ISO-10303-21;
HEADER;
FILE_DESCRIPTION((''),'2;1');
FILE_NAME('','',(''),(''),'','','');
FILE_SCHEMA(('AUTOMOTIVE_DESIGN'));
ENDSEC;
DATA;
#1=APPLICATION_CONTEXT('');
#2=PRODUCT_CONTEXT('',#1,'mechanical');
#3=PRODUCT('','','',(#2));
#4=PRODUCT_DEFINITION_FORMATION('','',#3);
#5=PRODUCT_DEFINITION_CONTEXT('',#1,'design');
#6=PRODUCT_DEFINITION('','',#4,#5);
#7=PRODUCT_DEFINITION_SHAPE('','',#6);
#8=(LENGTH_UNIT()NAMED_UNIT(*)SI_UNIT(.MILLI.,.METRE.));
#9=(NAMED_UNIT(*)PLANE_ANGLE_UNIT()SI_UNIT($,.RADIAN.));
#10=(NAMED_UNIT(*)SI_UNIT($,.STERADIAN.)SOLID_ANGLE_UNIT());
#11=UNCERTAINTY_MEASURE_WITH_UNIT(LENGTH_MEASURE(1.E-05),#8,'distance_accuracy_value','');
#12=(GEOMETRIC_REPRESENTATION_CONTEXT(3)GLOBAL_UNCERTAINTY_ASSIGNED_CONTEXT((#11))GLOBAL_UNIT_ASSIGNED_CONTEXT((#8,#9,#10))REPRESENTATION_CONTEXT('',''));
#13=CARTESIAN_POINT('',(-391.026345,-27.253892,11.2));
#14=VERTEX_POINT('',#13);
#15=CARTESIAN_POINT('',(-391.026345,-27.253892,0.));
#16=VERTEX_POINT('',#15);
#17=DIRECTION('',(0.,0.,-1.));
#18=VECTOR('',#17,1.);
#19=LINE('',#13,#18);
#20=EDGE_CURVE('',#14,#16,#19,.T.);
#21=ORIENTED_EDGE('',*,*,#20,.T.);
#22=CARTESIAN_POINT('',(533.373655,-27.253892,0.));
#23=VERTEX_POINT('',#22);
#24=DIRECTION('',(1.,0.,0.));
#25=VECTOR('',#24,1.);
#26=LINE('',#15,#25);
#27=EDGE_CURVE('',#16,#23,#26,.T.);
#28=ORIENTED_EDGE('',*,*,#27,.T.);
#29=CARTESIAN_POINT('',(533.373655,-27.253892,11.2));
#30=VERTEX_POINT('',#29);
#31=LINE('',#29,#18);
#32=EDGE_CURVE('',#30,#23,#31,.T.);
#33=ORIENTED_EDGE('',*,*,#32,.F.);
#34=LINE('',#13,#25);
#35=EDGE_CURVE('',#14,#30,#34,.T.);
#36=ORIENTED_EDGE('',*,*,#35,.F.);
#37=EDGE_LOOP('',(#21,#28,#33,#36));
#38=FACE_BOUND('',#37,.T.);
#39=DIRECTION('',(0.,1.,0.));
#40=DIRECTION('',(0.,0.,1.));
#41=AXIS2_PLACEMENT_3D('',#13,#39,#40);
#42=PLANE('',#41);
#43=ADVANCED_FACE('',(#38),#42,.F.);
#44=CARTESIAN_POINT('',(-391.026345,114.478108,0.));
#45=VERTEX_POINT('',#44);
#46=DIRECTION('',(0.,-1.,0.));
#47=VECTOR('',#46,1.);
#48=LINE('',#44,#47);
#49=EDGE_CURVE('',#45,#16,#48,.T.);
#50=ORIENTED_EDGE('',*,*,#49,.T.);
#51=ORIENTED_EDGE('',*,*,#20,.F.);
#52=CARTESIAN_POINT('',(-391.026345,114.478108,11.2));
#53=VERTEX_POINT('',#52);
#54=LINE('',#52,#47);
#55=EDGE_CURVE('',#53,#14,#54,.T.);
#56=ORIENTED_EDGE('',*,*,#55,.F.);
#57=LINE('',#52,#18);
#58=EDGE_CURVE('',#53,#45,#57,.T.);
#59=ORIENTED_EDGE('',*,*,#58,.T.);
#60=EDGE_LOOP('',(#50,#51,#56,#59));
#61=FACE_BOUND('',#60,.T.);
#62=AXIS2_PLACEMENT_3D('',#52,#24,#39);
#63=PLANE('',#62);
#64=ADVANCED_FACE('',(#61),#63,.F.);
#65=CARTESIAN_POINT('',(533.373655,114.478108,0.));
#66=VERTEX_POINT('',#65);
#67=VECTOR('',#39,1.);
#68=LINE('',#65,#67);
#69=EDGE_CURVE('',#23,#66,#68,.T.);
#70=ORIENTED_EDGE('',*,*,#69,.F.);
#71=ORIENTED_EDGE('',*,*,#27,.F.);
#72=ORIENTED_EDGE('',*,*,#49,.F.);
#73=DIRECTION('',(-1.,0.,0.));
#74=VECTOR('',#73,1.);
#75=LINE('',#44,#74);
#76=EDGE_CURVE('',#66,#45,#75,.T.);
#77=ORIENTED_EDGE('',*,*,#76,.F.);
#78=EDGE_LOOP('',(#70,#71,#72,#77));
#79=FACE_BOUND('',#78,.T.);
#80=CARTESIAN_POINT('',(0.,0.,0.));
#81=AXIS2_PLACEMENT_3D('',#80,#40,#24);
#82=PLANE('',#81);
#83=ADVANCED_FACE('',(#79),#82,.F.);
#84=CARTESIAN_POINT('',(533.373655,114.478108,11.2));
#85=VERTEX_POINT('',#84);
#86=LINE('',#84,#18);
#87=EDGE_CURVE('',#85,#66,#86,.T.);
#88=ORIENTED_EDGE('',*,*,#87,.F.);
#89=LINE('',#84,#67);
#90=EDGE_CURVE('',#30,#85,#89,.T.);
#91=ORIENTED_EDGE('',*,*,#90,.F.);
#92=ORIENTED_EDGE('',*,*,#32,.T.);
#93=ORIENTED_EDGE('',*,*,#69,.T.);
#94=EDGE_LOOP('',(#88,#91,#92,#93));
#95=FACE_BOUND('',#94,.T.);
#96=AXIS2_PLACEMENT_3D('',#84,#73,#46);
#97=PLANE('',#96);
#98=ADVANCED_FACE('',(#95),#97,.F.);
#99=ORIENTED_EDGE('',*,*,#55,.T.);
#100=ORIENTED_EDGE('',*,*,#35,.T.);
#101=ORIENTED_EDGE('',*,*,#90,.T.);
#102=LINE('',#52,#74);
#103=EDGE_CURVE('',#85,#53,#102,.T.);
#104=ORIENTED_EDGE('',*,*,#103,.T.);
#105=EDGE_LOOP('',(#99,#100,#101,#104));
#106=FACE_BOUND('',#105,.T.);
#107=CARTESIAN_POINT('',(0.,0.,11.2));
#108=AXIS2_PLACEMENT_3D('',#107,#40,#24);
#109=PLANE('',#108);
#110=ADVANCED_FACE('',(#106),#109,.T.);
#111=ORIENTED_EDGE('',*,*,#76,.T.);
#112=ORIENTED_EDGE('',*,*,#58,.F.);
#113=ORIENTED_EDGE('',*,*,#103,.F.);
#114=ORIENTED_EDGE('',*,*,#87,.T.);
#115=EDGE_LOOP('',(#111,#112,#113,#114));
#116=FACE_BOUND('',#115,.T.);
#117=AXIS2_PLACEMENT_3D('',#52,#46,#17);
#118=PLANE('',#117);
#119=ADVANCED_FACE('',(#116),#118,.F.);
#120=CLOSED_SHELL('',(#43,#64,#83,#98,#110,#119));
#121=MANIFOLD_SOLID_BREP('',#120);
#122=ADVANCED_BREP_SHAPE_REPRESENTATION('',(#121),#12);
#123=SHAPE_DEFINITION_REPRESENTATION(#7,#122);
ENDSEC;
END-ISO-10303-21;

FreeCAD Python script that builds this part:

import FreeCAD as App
import Part
import Sketcher

V = App.Vector

doc = App.newDocument("Part")
params = doc.addObject("Spreadsheet::Sheet", "Params")
for row, (alias, value) in enumerate([
    ("sketch1_width", "924.4 mm"),
    ("pad1_length", "11.2 mm"),
], start=1):
    params.set(f"A{row}", alias)
    params.set(f"B{row}", "=" + value)
    params.setAlias(f"B{row}", alias)

body = doc.addObject("PartDesign::Body", "Body")

sketch1 = body.newObject("Sketcher::SketchObject", "Sketch")
sketch1.AttachmentSupport = (doc.getObject("XY_Plane"), [""])
sketch1.MapMode = "FlatFace"
sketch1.addGeometry(Part.LineSegment(V(-391, 114, 0), V(-391, -27, 0)), False)
sketch1.addGeometry(Part.LineSegment(V(-391, -27, 0), V(533, -27, 0)), False)
sketch1.addGeometry(Part.LineSegment(V(533, -27, 0), V(533, 114, 0)), False)
sketch1.addGeometry(Part.LineSegment(V(533, 114, 0), V(-391, 114, 0)), False)
sketch1.addConstraint(Sketcher.Constraint("Coincident", 0, 2, 1, 1))
sketch1.addConstraint(Sketcher.Constraint("Coincident", 1, 2, 2, 1))
sketch1.addConstraint(Sketcher.Constraint("Coincident", 2, 2, 3, 1))
sketch1.addConstraint(Sketcher.Constraint("Coincident", 3, 2, 0, 1))
sketch1.addConstraint(Sketcher.Constraint("Vertical", 0))
sketch1.addConstraint(Sketcher.Constraint("Horizontal", 1))
sketch1.addConstraint(Sketcher.Constraint("Vertical", 2))
sketch1.addConstraint(Sketcher.Constraint("Horizontal", 3))
sketch1.addConstraint(Sketcher.Constraint("DistanceX", 1, 1, 1, 2, 924.4))
sketch1.addConstraint(Sketcher.Constraint("DistanceY", 0, 2, 0, 1, 141.732))
sketch1.addConstraint(Sketcher.Constraint("DistanceX", 0, 2, -1, 1, 391.026345))
sketch1.addConstraint(Sketcher.Constraint("DistanceY", 0, 2, -1, 1, 27.253892))
sketch1.setExpression("Constraints[8]", "Params.sketch1_width")
pad1 = body.newObject("PartDesign::Pad", "Pad")
pad1.Profile = sketch1
pad1.setExpression("Length", "Params.pad1_length")

doc.recompute()
